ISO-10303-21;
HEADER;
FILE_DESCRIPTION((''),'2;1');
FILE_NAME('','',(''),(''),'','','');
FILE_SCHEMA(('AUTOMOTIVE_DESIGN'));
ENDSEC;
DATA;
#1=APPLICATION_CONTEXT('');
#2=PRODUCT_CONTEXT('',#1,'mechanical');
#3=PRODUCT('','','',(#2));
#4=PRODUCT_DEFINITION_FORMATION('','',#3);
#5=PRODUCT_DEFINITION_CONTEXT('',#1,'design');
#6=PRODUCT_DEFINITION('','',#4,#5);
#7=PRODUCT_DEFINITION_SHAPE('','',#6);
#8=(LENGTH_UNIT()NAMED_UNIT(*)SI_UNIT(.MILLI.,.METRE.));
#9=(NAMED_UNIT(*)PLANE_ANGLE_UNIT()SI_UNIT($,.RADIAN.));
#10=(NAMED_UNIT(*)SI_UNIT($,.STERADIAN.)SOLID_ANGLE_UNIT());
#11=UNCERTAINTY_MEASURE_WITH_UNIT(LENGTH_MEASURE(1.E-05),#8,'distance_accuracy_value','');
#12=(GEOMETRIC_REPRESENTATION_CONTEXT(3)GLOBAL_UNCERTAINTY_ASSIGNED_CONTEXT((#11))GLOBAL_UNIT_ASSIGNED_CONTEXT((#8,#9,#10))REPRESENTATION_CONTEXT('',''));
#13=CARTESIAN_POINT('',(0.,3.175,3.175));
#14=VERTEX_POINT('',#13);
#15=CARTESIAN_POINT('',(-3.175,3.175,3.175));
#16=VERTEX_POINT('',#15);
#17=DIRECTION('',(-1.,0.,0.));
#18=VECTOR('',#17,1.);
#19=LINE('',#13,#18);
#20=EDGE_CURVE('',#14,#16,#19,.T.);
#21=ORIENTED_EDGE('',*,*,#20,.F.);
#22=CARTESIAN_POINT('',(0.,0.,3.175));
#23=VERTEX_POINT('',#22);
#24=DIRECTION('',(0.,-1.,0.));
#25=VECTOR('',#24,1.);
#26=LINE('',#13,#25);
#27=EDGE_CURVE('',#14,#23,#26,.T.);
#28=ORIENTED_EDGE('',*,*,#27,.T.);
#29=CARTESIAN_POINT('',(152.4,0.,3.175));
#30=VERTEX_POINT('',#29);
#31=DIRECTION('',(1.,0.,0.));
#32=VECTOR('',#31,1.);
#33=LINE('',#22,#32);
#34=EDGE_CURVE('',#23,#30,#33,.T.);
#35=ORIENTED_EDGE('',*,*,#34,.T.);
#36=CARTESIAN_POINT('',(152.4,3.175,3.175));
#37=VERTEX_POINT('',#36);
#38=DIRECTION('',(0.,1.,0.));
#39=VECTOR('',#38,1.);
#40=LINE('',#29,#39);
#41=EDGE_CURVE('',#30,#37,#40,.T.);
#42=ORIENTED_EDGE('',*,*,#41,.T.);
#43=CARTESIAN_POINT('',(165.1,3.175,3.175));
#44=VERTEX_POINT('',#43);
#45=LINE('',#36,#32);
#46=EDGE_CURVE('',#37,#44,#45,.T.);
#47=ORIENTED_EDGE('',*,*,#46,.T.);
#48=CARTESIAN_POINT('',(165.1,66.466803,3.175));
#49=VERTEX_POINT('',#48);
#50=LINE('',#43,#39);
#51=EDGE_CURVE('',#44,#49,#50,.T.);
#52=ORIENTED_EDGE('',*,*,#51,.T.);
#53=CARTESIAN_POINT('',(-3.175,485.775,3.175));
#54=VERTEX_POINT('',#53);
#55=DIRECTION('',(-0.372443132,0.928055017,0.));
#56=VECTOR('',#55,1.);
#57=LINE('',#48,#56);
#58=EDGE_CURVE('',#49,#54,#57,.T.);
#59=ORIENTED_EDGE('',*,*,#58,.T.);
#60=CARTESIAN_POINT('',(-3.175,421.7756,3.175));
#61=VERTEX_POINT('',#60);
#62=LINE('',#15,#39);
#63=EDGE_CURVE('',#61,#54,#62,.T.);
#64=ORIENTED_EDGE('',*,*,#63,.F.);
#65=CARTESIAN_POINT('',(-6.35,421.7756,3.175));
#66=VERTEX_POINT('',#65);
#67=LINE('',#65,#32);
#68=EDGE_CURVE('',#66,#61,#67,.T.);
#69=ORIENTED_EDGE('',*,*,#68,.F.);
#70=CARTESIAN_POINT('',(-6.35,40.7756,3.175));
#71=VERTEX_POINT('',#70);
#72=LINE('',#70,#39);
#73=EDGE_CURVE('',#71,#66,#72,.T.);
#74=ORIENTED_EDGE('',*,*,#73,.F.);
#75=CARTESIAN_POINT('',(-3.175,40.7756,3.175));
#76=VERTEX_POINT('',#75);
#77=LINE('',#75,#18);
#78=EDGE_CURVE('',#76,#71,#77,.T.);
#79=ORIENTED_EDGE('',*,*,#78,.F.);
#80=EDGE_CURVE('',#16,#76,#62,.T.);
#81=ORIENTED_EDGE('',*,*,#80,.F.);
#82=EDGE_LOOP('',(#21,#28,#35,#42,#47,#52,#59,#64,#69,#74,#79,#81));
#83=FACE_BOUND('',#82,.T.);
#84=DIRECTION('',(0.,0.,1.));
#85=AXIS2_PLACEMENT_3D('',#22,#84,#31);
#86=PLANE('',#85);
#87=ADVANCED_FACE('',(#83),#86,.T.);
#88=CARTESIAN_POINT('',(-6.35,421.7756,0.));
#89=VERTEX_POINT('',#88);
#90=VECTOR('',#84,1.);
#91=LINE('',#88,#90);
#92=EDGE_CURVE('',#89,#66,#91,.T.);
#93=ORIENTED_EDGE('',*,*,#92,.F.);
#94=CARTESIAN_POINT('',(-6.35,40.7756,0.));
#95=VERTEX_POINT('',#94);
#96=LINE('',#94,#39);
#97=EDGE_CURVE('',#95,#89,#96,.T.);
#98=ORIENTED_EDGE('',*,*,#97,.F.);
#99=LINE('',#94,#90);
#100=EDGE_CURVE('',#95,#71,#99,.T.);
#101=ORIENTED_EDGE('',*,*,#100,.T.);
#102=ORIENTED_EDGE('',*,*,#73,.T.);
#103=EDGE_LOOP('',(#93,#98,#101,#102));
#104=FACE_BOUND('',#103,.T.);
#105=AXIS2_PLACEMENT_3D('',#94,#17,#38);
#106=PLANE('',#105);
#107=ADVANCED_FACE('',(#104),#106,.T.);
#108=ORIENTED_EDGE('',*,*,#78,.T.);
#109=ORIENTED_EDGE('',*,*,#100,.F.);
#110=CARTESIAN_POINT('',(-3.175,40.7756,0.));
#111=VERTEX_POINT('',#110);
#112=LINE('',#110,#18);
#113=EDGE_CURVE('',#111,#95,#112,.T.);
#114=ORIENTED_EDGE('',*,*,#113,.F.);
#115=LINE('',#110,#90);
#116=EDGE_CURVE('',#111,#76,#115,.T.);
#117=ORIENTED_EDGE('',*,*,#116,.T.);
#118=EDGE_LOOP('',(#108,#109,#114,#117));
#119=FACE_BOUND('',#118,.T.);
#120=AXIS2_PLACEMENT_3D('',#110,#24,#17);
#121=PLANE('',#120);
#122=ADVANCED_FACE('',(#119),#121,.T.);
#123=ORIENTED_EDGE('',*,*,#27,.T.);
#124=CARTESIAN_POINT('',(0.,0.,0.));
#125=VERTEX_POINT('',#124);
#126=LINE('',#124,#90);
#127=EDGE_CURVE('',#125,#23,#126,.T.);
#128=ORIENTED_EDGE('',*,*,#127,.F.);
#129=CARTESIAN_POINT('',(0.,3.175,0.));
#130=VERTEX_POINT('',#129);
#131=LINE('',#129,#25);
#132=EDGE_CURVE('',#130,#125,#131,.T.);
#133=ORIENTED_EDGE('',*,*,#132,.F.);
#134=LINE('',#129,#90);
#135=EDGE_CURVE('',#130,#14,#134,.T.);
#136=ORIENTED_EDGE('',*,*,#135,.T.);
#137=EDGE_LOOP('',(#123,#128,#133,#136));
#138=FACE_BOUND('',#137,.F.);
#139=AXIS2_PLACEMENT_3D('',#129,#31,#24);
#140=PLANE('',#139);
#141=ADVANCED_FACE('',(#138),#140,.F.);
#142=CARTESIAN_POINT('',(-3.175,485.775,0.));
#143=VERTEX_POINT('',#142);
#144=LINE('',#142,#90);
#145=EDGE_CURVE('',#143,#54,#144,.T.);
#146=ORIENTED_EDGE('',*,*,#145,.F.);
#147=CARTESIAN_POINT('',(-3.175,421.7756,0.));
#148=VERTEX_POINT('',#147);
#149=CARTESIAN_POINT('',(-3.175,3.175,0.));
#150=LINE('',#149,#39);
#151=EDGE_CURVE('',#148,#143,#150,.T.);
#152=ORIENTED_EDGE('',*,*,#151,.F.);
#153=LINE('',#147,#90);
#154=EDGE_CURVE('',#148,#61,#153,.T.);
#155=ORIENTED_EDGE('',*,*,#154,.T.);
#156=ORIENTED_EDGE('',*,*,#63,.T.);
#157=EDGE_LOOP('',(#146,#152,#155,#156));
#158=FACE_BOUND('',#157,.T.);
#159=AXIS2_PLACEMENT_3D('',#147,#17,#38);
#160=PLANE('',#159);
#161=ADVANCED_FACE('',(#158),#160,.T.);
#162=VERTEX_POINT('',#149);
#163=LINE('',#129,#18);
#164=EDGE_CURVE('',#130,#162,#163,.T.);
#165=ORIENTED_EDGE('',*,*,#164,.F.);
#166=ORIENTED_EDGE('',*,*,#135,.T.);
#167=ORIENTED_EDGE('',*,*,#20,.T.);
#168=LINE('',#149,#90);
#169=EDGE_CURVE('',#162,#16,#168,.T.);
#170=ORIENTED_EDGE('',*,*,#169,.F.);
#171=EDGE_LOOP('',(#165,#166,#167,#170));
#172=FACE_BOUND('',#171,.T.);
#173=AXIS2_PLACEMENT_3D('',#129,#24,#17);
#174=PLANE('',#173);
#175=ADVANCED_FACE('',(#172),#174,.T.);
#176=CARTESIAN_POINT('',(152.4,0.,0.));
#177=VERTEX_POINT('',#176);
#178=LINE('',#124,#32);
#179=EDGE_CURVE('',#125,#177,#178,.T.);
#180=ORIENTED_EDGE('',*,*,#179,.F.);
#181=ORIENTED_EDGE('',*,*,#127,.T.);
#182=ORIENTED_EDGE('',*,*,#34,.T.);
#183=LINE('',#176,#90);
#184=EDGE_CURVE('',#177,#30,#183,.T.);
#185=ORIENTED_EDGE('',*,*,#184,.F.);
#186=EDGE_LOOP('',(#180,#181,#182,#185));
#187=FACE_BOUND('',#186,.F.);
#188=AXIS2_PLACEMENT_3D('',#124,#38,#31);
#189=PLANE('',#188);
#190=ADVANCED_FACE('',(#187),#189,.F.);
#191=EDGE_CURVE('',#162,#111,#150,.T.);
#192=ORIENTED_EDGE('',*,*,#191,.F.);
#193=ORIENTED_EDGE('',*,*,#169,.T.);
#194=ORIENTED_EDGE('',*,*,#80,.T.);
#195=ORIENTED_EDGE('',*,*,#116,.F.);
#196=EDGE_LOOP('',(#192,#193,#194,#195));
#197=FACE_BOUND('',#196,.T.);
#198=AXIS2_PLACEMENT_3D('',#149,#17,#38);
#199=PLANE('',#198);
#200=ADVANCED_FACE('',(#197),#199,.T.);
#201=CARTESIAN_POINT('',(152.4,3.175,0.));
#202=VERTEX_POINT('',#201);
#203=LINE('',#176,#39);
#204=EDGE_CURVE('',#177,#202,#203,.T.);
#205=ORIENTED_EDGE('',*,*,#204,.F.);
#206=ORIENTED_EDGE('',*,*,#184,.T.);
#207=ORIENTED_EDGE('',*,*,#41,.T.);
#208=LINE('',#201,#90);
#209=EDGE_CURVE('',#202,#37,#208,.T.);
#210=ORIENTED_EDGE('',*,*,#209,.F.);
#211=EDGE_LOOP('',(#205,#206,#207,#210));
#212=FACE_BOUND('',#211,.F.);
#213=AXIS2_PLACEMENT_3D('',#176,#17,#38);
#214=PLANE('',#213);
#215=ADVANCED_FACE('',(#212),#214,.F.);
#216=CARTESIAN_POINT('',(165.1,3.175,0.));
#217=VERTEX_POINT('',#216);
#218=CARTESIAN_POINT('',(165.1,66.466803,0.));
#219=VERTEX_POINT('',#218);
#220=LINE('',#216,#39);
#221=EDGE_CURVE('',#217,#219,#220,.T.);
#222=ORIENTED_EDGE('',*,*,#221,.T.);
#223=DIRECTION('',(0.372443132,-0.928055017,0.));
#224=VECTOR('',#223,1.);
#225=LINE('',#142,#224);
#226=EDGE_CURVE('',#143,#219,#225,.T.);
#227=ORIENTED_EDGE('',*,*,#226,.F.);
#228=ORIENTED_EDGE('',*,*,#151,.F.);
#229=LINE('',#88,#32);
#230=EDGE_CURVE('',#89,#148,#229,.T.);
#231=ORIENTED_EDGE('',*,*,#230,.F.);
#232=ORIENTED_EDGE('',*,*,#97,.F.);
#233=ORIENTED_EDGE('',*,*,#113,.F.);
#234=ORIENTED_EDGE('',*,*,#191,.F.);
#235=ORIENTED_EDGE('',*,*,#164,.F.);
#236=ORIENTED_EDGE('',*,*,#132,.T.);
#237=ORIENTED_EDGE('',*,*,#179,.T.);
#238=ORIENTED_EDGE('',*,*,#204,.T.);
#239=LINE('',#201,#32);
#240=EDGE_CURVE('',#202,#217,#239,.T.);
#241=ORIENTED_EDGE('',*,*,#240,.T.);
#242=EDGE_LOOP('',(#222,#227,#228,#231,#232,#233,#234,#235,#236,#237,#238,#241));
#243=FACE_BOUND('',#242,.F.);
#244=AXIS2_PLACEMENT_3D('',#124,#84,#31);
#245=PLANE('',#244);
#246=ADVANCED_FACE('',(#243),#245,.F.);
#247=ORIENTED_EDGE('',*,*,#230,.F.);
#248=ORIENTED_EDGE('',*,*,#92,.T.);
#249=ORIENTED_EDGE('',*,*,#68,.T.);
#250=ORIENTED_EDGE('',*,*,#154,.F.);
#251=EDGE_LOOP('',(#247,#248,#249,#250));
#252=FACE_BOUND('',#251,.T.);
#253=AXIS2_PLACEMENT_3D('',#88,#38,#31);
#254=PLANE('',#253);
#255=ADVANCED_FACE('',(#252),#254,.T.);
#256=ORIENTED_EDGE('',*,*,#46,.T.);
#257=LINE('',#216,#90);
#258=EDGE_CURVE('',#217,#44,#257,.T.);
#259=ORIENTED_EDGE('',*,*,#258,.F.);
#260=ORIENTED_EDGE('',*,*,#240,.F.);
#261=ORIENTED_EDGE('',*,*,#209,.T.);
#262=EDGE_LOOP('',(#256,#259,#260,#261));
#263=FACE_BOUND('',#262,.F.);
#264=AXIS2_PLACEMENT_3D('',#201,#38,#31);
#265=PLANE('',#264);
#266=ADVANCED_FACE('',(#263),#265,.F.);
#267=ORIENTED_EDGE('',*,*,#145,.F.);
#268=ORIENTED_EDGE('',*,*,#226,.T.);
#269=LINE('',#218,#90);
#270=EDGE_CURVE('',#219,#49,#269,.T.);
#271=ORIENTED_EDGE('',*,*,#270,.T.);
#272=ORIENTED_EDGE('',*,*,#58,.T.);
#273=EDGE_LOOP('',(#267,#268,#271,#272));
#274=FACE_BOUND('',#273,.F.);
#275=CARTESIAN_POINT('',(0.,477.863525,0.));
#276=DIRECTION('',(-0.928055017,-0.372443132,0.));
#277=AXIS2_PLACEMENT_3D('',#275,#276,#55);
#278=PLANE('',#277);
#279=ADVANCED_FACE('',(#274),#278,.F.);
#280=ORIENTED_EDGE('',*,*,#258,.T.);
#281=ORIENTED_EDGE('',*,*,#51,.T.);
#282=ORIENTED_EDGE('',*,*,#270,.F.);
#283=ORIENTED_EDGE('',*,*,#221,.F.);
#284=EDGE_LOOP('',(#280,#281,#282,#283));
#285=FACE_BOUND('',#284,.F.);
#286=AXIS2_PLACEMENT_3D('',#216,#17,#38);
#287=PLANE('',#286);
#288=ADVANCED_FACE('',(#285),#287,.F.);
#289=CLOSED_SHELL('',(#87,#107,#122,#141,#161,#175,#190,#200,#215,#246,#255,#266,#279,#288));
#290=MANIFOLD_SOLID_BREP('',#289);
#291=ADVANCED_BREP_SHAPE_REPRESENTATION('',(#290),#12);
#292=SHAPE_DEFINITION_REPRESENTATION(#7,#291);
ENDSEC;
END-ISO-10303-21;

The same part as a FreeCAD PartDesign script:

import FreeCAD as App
import Part
import Sketcher
Q = App.Units.Quantity

doc = App.newDocument("Part")
body = doc.addObject("PartDesign::Body", "Body")

# Sketch on XY plane
sketch1 = body.newObject("Sketcher::SketchObject", "Sketch")
sketch1.AttachmentSupport = (doc.getObject("XY_Plane"), [""])
sketch1.MapMode = "FlatFace"
sketch1.addGeometry([
    Part.LineSegment(App.Vector(0, 3.2, 0), App.Vector(0, 0, 0)),  # 0
    Part.LineSegment(App.Vector(0, 0, 0), App.Vector(152.4, 0, 0)),  # 1
    Part.LineSegment(App.Vector(152.4, 0, 0), App.Vector(152.4, 3.2, 0)),  # 2
    Part.LineSegment(App.Vector(152.4, 3.2, 0), App.Vector(165.1, 3.2, 0)),  # 3
    Part.LineSegment(App.Vector(165.1, 3.2, 0), App.Vector(165.1, 66.5, 0)),  # 4
    Part.LineSegment(App.Vector(165.1, 66.5, 0), App.Vector(-3.2, 485.8, 0)),  # 5
    Part.LineSegment(App.Vector(-3.2, 485.8, 0), App.Vector(-3.2, 421.8, 0)),  # 6
    Part.LineSegment(App.Vector(-3.2, 421.8, 0), App.Vector(-6.3, 421.8, 0)),  # 7
    Part.LineSegment(App.Vector(-6.3, 421.8, 0), App.Vector(-6.3, 40.8, 0)),  # 8
    Part.LineSegment(App.Vector(-6.3, 40.8, 0), App.Vector(-3.2, 40.8, 0)),  # 9
    Part.LineSegment(App.Vector(-3.2, 40.8, 0), App.Vector(-3.2, 3.2, 0)),  # 10
    Part.LineSegment(App.Vector(-3.2, 3.2, 0), App.Vector(0, 3.2, 0)),  # 11
], False)
sketch1.addConstraint([
    Sketcher.Constraint("Coincident", 0, 2, 1, 1),
    Sketcher.Constraint("Coincident", 1, 2, 2, 1),
    Sketcher.Constraint("Coincident", 2, 2, 3, 1),
    Sketcher.Constraint("Coincident", 3, 2, 4, 1),
    Sketcher.Constraint("Coincident", 4, 2, 5, 1),
    Sketcher.Constraint("Coincident", 5, 2, 6, 1),
    Sketcher.Constraint("Coincident", 6, 2, 7, 1),
    Sketcher.Constraint("Coincident", 7, 2, 8, 1),
    Sketcher.Constraint("Coincident", 8, 2, 9, 1),
    Sketcher.Constraint("Coincident", 9, 2, 10, 1),
    Sketcher.Constraint("Coincident", 10, 2, 11, 1),
    Sketcher.Constraint("Coincident", 11, 2, 0, 1),
    Sketcher.Constraint("Vertical", 0),
    Sketcher.Constraint("Horizontal", 1),
    Sketcher.Constraint("Vertical", 2),
    Sketcher.Constraint("Horizontal", 3),
    Sketcher.Constraint("Vertical", 4),
    Sketcher.Constraint("Vertical", 6),
    Sketcher.Constraint("Horizontal", 7),
    Sketcher.Constraint("Vertical", 8),
    Sketcher.Constraint("Horizontal", 9),
    Sketcher.Constraint("Vertical", 10),
    Sketcher.Constraint("Horizontal", 11),
    Sketcher.Constraint("Coincident", 0, 2, -1, 1),
    Sketcher.Constraint("Horizontal", 3, 2, 10, 2),
    Sketcher.Constraint("Vertical", 6, 2, 9, 2),
    Sketcher.Constraint("Equal", 9, 11),
    Sketcher.Constraint("Equal", 11, 0),
    Sketcher.Constraint("DistanceX", 1, 1, 1, 2, Q("6 in")),
    Sketcher.Constraint("DistanceY", 8, 2, 8, 1, Q("15 in")),
    Sketcher.Constraint("DistanceY", 2, 2, 5, 2, Q("19 in")),
    Sketcher.Constraint("DistanceX", 7, 2, 7, 1, Q("0.125 in")),
    Sketcher.Constraint("DistanceX", 3, 1, 3, 2, Q("0.5 in")),
    Sketcher.Constraint("DistanceY", 10, 2, 10, 1, 37.6006),
    Sketcher.Constraint("DistanceY", 4, 1, 4, 2, Q("2.4918 in")),
])
pad1 = body.newObject("PartDesign::Pad", "Pad")
pad1.Profile = sketch1
pad1.Length = Q("0.125 in")

doc.recompute()
